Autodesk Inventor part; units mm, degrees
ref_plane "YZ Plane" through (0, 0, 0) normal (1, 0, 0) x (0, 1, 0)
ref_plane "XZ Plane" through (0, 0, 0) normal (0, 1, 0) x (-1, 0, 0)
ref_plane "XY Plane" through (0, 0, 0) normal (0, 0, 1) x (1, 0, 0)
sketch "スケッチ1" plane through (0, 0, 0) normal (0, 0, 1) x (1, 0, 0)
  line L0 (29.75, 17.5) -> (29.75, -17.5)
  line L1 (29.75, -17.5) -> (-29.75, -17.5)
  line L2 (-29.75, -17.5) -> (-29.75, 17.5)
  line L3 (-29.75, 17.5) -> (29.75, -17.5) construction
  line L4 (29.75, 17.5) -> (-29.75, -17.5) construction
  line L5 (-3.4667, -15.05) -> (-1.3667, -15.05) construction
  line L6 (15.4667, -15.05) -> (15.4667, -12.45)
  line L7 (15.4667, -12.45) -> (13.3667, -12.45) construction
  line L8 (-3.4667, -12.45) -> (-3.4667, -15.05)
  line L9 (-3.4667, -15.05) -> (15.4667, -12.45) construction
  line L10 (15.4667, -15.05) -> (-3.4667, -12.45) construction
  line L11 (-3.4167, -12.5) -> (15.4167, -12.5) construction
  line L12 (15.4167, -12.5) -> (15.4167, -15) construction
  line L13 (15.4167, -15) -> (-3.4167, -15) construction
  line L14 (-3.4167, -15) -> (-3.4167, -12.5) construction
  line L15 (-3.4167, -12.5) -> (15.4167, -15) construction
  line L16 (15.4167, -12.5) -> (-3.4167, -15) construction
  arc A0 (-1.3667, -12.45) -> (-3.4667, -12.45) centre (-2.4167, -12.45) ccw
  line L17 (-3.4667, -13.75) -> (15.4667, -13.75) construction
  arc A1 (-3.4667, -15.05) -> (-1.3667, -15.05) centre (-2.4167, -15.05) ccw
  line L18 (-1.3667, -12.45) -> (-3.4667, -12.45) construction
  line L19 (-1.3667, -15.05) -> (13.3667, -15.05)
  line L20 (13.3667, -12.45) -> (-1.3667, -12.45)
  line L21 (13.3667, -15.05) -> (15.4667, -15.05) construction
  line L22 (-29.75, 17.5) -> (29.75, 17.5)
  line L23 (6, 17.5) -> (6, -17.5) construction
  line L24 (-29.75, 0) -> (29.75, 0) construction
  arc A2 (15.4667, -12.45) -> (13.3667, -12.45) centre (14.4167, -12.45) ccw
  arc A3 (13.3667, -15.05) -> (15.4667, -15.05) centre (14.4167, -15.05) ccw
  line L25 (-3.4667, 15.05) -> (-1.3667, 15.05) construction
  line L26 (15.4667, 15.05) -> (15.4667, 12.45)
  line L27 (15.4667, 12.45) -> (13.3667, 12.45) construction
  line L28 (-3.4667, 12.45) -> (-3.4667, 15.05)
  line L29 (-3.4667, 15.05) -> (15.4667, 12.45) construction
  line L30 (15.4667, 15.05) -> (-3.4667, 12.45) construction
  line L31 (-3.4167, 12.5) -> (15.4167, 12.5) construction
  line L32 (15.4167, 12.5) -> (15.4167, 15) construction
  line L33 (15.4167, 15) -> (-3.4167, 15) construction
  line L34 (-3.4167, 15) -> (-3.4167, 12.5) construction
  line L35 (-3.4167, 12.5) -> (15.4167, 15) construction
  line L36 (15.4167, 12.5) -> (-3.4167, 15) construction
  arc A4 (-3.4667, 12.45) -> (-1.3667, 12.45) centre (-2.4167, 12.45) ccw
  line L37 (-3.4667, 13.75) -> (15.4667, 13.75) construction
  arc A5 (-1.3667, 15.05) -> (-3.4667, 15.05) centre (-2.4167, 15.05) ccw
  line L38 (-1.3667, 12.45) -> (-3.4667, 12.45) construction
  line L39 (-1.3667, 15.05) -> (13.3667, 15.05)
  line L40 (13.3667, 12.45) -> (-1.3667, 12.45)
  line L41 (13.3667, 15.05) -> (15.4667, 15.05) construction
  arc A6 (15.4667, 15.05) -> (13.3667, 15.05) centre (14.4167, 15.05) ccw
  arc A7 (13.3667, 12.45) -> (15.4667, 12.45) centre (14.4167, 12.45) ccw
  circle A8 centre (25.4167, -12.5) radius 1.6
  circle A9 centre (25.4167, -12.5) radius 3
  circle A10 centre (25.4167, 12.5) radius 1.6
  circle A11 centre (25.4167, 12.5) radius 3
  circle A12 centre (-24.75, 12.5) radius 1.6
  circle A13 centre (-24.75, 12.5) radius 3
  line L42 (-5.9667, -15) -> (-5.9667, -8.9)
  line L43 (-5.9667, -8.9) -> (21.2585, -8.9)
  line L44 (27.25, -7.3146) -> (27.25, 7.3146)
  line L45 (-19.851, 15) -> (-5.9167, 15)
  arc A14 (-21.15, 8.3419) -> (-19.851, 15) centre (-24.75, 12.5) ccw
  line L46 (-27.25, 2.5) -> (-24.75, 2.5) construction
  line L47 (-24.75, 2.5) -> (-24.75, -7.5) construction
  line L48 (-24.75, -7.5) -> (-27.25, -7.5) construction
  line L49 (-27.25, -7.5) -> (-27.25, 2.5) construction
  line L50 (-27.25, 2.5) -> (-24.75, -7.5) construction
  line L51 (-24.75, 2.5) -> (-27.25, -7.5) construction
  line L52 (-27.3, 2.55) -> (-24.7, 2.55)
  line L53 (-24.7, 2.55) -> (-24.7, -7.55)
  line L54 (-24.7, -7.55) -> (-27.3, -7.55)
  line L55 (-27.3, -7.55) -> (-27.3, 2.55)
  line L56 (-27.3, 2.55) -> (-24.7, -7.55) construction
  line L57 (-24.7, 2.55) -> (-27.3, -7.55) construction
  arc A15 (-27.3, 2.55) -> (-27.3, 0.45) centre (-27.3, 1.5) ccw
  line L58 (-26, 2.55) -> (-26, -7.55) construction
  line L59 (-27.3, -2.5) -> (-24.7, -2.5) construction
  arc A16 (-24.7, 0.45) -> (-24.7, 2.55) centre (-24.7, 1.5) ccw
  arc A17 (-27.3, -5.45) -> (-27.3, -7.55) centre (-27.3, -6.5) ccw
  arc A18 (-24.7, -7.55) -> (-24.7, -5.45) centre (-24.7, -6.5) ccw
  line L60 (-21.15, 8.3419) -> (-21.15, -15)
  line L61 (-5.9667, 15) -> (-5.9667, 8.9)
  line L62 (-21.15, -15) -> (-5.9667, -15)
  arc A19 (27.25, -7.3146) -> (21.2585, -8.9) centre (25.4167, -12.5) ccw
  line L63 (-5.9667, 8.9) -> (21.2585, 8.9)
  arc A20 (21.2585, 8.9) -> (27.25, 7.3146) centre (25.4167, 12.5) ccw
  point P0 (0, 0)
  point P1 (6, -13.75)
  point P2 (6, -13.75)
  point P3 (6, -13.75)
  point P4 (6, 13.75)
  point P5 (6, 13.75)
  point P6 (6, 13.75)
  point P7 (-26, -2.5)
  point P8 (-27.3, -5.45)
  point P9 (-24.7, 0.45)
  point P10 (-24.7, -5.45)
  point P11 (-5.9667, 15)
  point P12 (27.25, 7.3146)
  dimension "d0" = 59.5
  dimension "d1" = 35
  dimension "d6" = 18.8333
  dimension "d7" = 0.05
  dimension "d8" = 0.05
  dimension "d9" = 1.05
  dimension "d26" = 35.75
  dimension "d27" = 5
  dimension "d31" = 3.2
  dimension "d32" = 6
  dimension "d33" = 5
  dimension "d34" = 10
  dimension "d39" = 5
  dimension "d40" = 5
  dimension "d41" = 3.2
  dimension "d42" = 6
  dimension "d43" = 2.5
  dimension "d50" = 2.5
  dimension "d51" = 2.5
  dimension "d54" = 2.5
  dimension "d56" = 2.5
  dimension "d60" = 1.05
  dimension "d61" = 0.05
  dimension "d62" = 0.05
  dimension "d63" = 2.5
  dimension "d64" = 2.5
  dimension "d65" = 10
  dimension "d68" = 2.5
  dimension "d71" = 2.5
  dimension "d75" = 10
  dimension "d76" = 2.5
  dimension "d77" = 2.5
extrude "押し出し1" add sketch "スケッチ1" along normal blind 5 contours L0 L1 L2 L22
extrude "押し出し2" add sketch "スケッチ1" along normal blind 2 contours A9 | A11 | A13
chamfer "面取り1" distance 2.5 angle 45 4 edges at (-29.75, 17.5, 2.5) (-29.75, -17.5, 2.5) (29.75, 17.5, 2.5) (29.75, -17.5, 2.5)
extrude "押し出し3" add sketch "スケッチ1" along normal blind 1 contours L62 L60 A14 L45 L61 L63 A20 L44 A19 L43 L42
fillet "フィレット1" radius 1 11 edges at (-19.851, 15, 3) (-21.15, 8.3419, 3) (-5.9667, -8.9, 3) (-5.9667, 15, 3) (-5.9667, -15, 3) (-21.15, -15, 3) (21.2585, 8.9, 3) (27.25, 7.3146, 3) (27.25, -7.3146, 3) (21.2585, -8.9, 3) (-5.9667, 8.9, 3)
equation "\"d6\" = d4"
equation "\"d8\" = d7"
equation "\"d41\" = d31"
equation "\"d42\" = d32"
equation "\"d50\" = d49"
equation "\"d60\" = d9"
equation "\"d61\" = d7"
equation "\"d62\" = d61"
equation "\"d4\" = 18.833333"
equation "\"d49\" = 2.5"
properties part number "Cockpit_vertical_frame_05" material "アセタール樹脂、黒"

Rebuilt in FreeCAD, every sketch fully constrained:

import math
import FreeCAD as App
import Part
import Sketcher

V = App.Vector
Q = App.Units.Quantity


def edges_at(feature, points):
    """Names of the edges that pass closest to the given points."""
    edges = feature.Shape.Edges
    near = lambda p: min(range(len(edges)), key=lambda i: edges[i].distToShape(Part.Vertex(*p))[0])
    return sorted({f"Edge{near(p) + 1}" for p in points})


def add_polygon(sketch, points):
    """Adds a closed chain of lines whose ends are joined by coincident constraints."""
    first, n = sketch.GeometryCount, len(points)
    for a, b in zip(points, points[1:] + points[:1]):
        sketch.addGeometry(Part.LineSegment(App.Vector(*a, 0), App.Vector(*b, 0)), False)
    for i in range(n):
        sketch.addConstraint(Sketcher.Constraint("Coincident", first + i, 2, first + (i + 1) % n, 1))

doc = App.newDocument("Part")
body = doc.addObject("PartDesign::Body", "Body")

sketch1 = doc.addObject("Sketcher::SketchObject", "Sketch")
body.addObject(sketch1)
sketch1.AttachmentSupport = (doc.XY_Plane, [""])
sketch1.MapMode = "FlatFace"
add_polygon(sketch1, [(29.8, -17.5), (29.8, 17.5), (-29.8, 17.5), (-29.8, -17.5)])
sketch1.addGeometry(Part.ArcOfCircle(Part.Circle(V(-27.3, 1.5, 0), V(0, 0, 1), 1), math.radians(90), math.radians(270)), False)
sketch1.addGeometry(Part.LineSegment(V(-27.3, 2.5, 0), V(-24.7, 2.5, 0)), False)
sketch1.addGeometry(Part.ArcOfCircle(Part.Circle(V(-24.7, 1.5, 0), V(0, 0, 1), 1.1), math.radians(-90), math.radians(90)), False)
sketch1.addGeometry(Part.LineSegment(V(-24.7, 0.5, 0), V(-24.7, -5.5, 0)), False)
sketch1.addGeometry(Part.ArcOfCircle(Part.Circle(V(-24.7, -6.5, 0), V(0, 0, 1), 1), math.radians(-90), math.radians(90)), False)
sketch1.addGeometry(Part.LineSegment(V(-24.7, -7.5, 0), V(-27.3, -7.5, 0)), False)
sketch1.addGeometry(Part.ArcOfCircle(Part.Circle(V(-27.3, -6.5, 0), V(0, 0, 1), 1), math.radians(90), math.radians(270)), False)
sketch1.addGeometry(Part.LineSegment(V(-27.3, -5.5, 0), V(-27.3, 0.5, 0)), False)
sketch1.addGeometry(Part.LineSegment(V(15.5, -12.4, 0), V(15.5, -15.1, 0)), False)
sketch1.addGeometry(Part.ArcOfCircle(Part.Circle(V(14.4, -15.1, 0), V(0, 0, 1), 1.1), math.radians(180), math.radians(360)), False)
sketch1.addGeometry(Part.LineSegment(V(13.4, -15.1, 0), V(-1.4, -15.1, 0)), False)
sketch1.addGeometry(Part.ArcOfCircle(Part.Circle(V(-2.4, -15.1, 0), V(0, 0, 1), 1), math.radians(180), math.radians(360)), False)
sketch1.addGeometry(Part.LineSegment(V(-3.5, -15.1, 0), V(-3.5, -12.4, 0)), False)
sketch1.addGeometry(Part.ArcOfCircle(Part.Circle(V(-2.4, -12.4, 0), V(0, 0, 1), 1.1), math.radians(0), math.radians(180)), False)
sketch1.addGeometry(Part.LineSegment(V(-1.4, -12.4, 0), V(13.4, -12.4, 0)), False)
sketch1.addGeometry(Part.ArcOfCircle(Part.Circle(V(14.4, -12.4, 0), V(0, 0, 1), 1), math.radians(0), math.radians(180)), False)
sketch1.addGeometry(Part.Circle(V(25.4, -12.5, 0), V(0, 0, 1), 3), False)
sketch1.addGeometry(Part.Circle(V(-24.8, 12.5, 0), V(0, 0, 1), 3), False)
sketch1.addGeometry(Part.LineSegment(V(-6, -8.9, 0), V(-6, -15, 0)), False)
sketch1.addGeometry(Part.LineSegment(V(-6, -15, 0), V(-21.1, -15, 0)), False)
sketch1.addGeometry(Part.LineSegment(V(-21.1, -15, 0), V(-21.1, 8.3, 0)), False)
sketch1.addGeometry(Part.ArcOfCircle(Part.Circle(V(-24.8, 12.5, 0), V(0, 0, 1), 5.5), math.radians(-49), math.radians(27)), False)
sketch1.addGeometry(Part.LineSegment(V(-19.9, 15, 0), V(-6, 15, 0)), False)
sketch1.addGeometry(Part.LineSegment(V(-6, 15, 0), V(-6, 8.9, 0)), False)
sketch1.addGeometry(Part.LineSegment(V(-6, 8.9, 0), V(21.3, 8.9, 0)), False)
sketch1.addGeometry(Part.ArcOfCircle(Part.Circle(V(25.4, 12.5, 0), V(0, 0, 1), 5.5), math.radians(-139), math.radians(-71)), False)
sketch1.addGeometry(Part.LineSegment(V(27.2, 7.3, 0), V(27.2, -7.3, 0)), False)
sketch1.addGeometry(Part.ArcOfCircle(Part.Circle(V(25.4, -12.5, 0), V(0, 0, 1), 5.5), math.radians(71), math.radians(139)), False)
sketch1.addGeometry(Part.LineSegment(V(21.3, -8.9, 0), V(-6, -8.9, 0)), False)
sketch1.addGeometry(Part.ArcOfCircle(Part.Circle(V(14.4, 15.1, 0), V(0, 0, 1), 1), math.radians(0), math.radians(180)), False)
sketch1.addGeometry(Part.LineSegment(V(15.5, 15.1, 0), V(15.5, 12.4, 0)), False)
sketch1.addGeometry(Part.ArcOfCircle(Part.Circle(V(14.4, 12.4, 0), V(0, 0, 1), 1.1), math.radians(180), math.radians(360)), False)
sketch1.addGeometry(Part.LineSegment(V(13.4, 12.4, 0), V(-1.4, 12.4, 0)), False)
sketch1.addGeometry(Part.ArcOfCircle(Part.Circle(V(-2.4, 12.4, 0), V(0, 0, 1), 1), math.radians(180), math.radians(360)), False)
sketch1.addGeometry(Part.LineSegment(V(-3.5, 12.4, 0), V(-3.5, 15.1, 0)), False)
sketch1.addGeometry(Part.ArcOfCircle(Part.Circle(V(-2.4, 15.1, 0), V(0, 0, 1), 1.1), math.radians(0), math.radians(180)), False)
sketch1.addGeometry(Part.LineSegment(V(-1.4, 15.1, 0), V(13.4, 15.1, 0)), False)
sketch1.addGeometry(Part.Circle(V(25.4, 12.5, 0), V(0, 0, 1), 3), False)
sketch1.addConstraint(Sketcher.Constraint("Tangent", 4, 1, 5, 1))
sketch1.addConstraint(Sketcher.Constraint("Tangent", 5, 2, 6, 2))
sketch1.addConstraint(Sketcher.Constraint("Coincident", 6, 1, 7, 1))
sketch1.addConstraint(Sketcher.Constraint("Coincident", 7, 2, 8, 2))
sketch1.addConstraint(Sketcher.Constraint("Tangent", 8, 1, 9, 1))
sketch1.addConstraint(Sketcher.Constraint("Tangent", 9, 2, 10, 2))
sketch1.addConstraint(Sketcher.Constraint("Coincident", 10, 1, 11, 1))
sketch1.addConstraint(Sketcher.Constraint("Coincident", 11, 2, 4, 2))
sketch1.addConstraint(Sketcher.Constraint("Tangent", 12, 2, 13, 2))
sketch1.addConstraint(Sketcher.Constraint("Coincident", 13, 1, 14, 1))
sketch1.addConstraint(Sketcher.Constraint("Coincident", 14, 2, 15, 2))
sketch1.addConstraint(Sketcher.Constraint("Tangent", 15, 1, 16, 1))
sketch1.addConstraint(Sketcher.Constraint("Tangent", 16, 2, 17, 2))
sketch1.addConstraint(Sketcher.Constraint("Coincident", 17, 1, 18, 1))
sketch1.addConstraint(Sketcher.Constraint("Coincident", 18, 2, 19, 2))
sketch1.addConstraint(Sketcher.Constraint("Tangent", 19, 1, 12, 1))
sketch1.addConstraint(Sketcher.Constraint("Coincident", 22, 2, 23, 1))
sketch1.addConstraint(Sketcher.Constraint("Coincident", 23, 2, 24, 1))
sketch1.addConstraint(Sketcher.Constraint("Coincident", 24, 2, 25, 1))
sketch1.addConstraint(Sketcher.Constraint("Coincident", 25, 2, 26, 1))
sketch1.addConstraint(Sketcher.Constraint("Coincident", 26, 2, 27, 1))
sketch1.addConstraint(Sketcher.Constraint("Coincident", 27, 2, 28, 1))
sketch1.addConstraint(Sketcher.Constraint("Coincident", 28, 2, 29, 1))
sketch1.addConstraint(Sketcher.Constraint("Coincident", 29, 2, 30, 1))
sketch1.addConstraint(Sketcher.Constraint("Coincident", 30, 2, 31, 1))
sketch1.addConstraint(Sketcher.Constraint("Coincident", 31, 2, 32, 1))
sketch1.addConstraint(Sketcher.Constraint("Coincident", 32, 2, 22, 1))
sketch1.addConstraint(Sketcher.Constraint("Tangent", 33, 1, 34, 1))
sketch1.addConstraint(Sketcher.Constraint("Tangent", 34, 2, 35, 2))
sketch1.addConstraint(Sketcher.Constraint("Coincident", 35, 1, 36, 1))
sketch1.addConstraint(Sketcher.Constraint("Coincident", 36, 2, 37, 2))
sketch1.addConstraint(Sketcher.Constraint("Tangent", 37, 1, 38, 1))
sketch1.addConstraint(Sketcher.Constraint("Tangent", 38, 2, 39, 2))
sketch1.addConstraint(Sketcher.Constraint("Coincident", 39, 1, 40, 1))
sketch1.addConstraint(Sketcher.Constraint("Coincident", 40, 2, 33, 2))
sketch1.addConstraint(Sketcher.Constraint("Vertical", 0))
sketch1.addConstraint(Sketcher.Constraint("Horizontal", 1))
sketch1.addConstraint(Sketcher.Constraint("Vertical", 2))
sketch1.addConstraint(Sketcher.Constraint("Horizontal", 3))
sketch1.addConstraint(Sketcher.Constraint("Horizontal", 5))
sketch1.addConstraint(Sketcher.Constraint("Vertical", 7))
sketch1.addConstraint(Sketcher.Constraint("Horizontal", 9))
sketch1.addConstraint(Sketcher.Constraint("Vertical", 11))
sketch1.addConstraint(Sketcher.Constraint("Vertical", 12))
sketch1.addConstraint(Sketcher.Constraint("Horizontal", 14))
sketch1.addConstraint(Sketcher.Constraint("Vertical", 16))
sketch1.addConstraint(Sketcher.Constraint("Horizontal", 18))
sketch1.addConstraint(Sketcher.Constraint("Vertical", 22))
sketch1.addConstraint(Sketcher.Constraint("Horizontal", 23))
sketch1.addConstraint(Sketcher.Constraint("Vertical", 24))
sketch1.addConstraint(Sketcher.Constraint("Horizontal", 26))
sketch1.addConstraint(Sketcher.Constraint("Vertical", 27))
sketch1.addConstraint(Sketcher.Constraint("Horizontal", 28))
sketch1.addConstraint(Sketcher.Constraint("Vertical", 30))
sketch1.addConstraint(Sketcher.Constraint("Horizontal", 32))
sketch1.addConstraint(Sketcher.Constraint("Vertical", 34))
sketch1.addConstraint(Sketcher.Constraint("Horizontal", 36))
sketch1.addConstraint(Sketcher.Constraint("Vertical", 38))
sketch1.addConstraint(Sketcher.Constraint("Horizontal", 40))
sketch1.addConstraint(Sketcher.Constraint("Coincident", 25, 3, 21, 3))
sketch1.addConstraint(Sketcher.Constraint("Coincident", 31, 3, 20, 3))
sketch1.addConstraint(Sketcher.Constraint("Coincident", 41, 3, 29, 3))
sketch1.addConstraint(Sketcher.Constraint("Equal", 4, 6))
sketch1.addConstraint(Sketcher.Constraint("Equal", 6, 8))
sketch1.addConstraint(Sketcher.Constraint("Equal", 8, 10))
sketch1.addConstraint(Sketcher.Constraint("Equal", 10, 13))
sketch1.addConstraint(Sketcher.Constraint("Equal", 13, 15))
sketch1.addConstraint(Sketcher.Constraint("Equal", 15, 17))
sketch1.addConstraint(Sketcher.Constraint("Equal", 17, 19))
sketch1.addConstraint(Sketcher.Constraint("Equal", 20, 21))
sketch1.addConstraint(Sketcher.Constraint("Equal", 25, 29))
sketch1.addConstraint(Sketcher.Constraint("Equal", 29, 31))
sketch1.addConstraint(Sketcher.Constraint("Equal", 19, 33))
sketch1.addConstraint(Sketcher.Constraint("Equal", 33, 35))
sketch1.addConstraint(Sketcher.Constraint("Equal", 35, 37))
sketch1.addConstraint(Sketcher.Constraint("Equal", 37, 39))
sketch1.addConstraint(Sketcher.Constraint("Equal", 21, 41))
sketch1.addConstraint(Sketcher.Constraint("Symmetric", 0, 2, 2, 2, -1, 1))
sketch1.addConstraint(Sketcher.Constraint("Symmetric", 20, 3, 29, 3, -1))
sketch1.addConstraint(Sketcher.Constraint("Symmetric", 13, 3, 33, 3, -1))
sketch1.addConstraint(Sketcher.Constraint("Symmetric", 17, 3, 37, 3, -1))
sketch1.addConstraint(Sketcher.Constraint("Symmetric", 22, 2, 26, 2, -1))
sketch1.addConstraint(Sketcher.Constraint("Horizontal", 13, 3, 15, 3))
sketch1.addConstraint(Sketcher.Constraint("Horizontal", 17, 3, 19, 3))
sketch1.addConstraint(Sketcher.Constraint("Horizontal", 25, 3, 29, 3))
sketch1.addConstraint(Sketcher.Constraint("Horizontal", 35, 3, 37, 3))
sketch1.addConstraint(Sketcher.Constraint("Horizontal", 33, 3, 39, 3))
sketch1.addConstraint(Sketcher.Constraint("Horizontal", 12, 2, 13, 1))
sketch1.addConstraint(Sketcher.Constraint("Horizontal", 16, 2, 17, 1))
sketch1.addConstraint(Sketcher.Constraint("Horizontal", 34, 2, 35, 1))
sketch1.addConstraint(Sketcher.Constraint("Horizontal", 38, 2, 39, 1))
sketch1.addConstraint(Sketcher.Constraint("Vertical", 6, 3, 8, 3))
sketch1.addConstraint(Sketcher.Constraint("Vertical", 4, 3, 10, 3))
sketch1.addConstraint(Sketcher.Constraint("Vertical", 5, 2, 6, 1))
sketch1.addConstraint(Sketcher.Constraint("Vertical", 9, 2, 10, 1))
sketch1.addConstraint(Sketcher.Constraint("Vertical", 28, 2, 31, 2))
sketch1.addConstraint(Sketcher.Constraint("Equal", 9, 12))
sketch1.addConstraint(Sketcher.Constraint("Diameter", 20, Q("6 mm")))
sketch1.addConstraint(Sketcher.Constraint("DistanceY", 0, 1, 0, 2, Q("35 mm")))
sketch1.addConstraint(Sketcher.Constraint("Radius", 4, Q("1.05 mm")))
sketch1.addConstraint(Sketcher.Constraint("DistanceX", 1, 2, 1, 1, Q("59.5 mm")))
sketch1.addConstraint(Sketcher.Constraint("DistanceY", 20, 3, 8, 3, Q("6 mm")))
sketch1.addConstraint(Sketcher.Constraint("DistanceY", 29, 3, 0, 2, Q("5 mm")))
sketch1.addConstraint(Sketcher.Constraint("DistanceX", 1, 2, 21, 3, Q("5 mm")))
sketch1.addConstraint(Sketcher.Constraint("Radius", 25, Q("5.5 mm")))
sketch1.addConstraint(Sketcher.Constraint("DistanceX", 22, 2, 15, 1, Q("2.5 mm")))
sketch1.addConstraint(Sketcher.Constraint("DistanceY", 2, 2, 23, 2, Q("2.5 mm")))
sketch1.addConstraint(Sketcher.Constraint("DistanceX", 29, 2, 0, 2, Q("2.5 mm")))
sketch1.addConstraint(Sketcher.Constraint("DistanceY", 20, 3, 19, 3, Q("0.05 mm")))
sketch1.addConstraint(Sketcher.Constraint("DistanceX", 21, 3, 6, 3, Q("0.05 mm")))
sketch1.addConstraint(Sketcher.Constraint("DistanceY", 15, 1, 22, 2, Q("0.05 mm")))
sketch1.addConstraint(Sketcher.Constraint("DistanceY", 7, 2, 7, 1, Q("5.9 mm")))
sketch1.addConstraint(Sketcher.Constraint("DistanceY", 22, 2, 22, 1, Q("6.1 mm")))
sketch1.addConstraint(Sketcher.Constraint("DistanceX", 19, 3, 20, 3, Q("11 mm")))
sketch1.addConstraint(Sketcher.Constraint("DistanceX", 2, 2, 23, 2, Q("8.6 mm")))
sketch1.addConstraint(Sketcher.Constraint("DistanceX", 14, 2, 14, 1, Q("14.7334 mm")))
sketch1.addConstraint(Sketcher.Constraint("DistanceX", 23, 2, 23, 1, Q("15.1833 mm")))
pad1 = doc.addObject("PartDesign::Pad", "Pad")
body.addObject(pad1)
pad1.Profile = sketch1
pad1.Length = 5

sketch2 = doc.addObject("Sketcher::SketchObject", "Sketch001")
body.addObject(sketch2)
sketch2.AttachmentSupport = (doc.XY_Plane, [""])
sketch2.MapMode = "FlatFace"
sketch2.addGeometry(Part.Circle(V(25.4, -12.5, 0), V(0, 0, 1), 3), False)
sketch2.addGeometry(Part.Circle(V(25.4, -12.5, 0), V(0, 0, 1), 1.6), False)
sketch2.addGeometry(Part.Circle(V(25.4, 12.5, 0), V(0, 0, 1), 3), False)
sketch2.addGeometry(Part.Circle(V(25.4, 12.5, 0), V(0, 0, 1), 1.6), False)
sketch2.addGeometry(Part.Circle(V(-24.8, 12.5, 0), V(0, 0, 1), 3), False)
sketch2.addGeometry(Part.Circle(V(-24.8, 12.5, 0), V(0, 0, 1), 1.6), False)
sketch2.addConstraint(Sketcher.Constraint("Coincident", 1, 3, 0, 3))
sketch2.addConstraint(Sketcher.Constraint("Coincident", 3, 3, 2, 3))
sketch2.addConstraint(Sketcher.Constraint("Coincident", 5, 3, 4, 3))
sketch2.addConstraint(Sketcher.Constraint("Equal", 0, 2))
sketch2.addConstraint(Sketcher.Constraint("Equal", 1, 3))
sketch2.addConstraint(Sketcher.Constraint("Equal", 2, 4))
sketch2.addConstraint(Sketcher.Constraint("Equal", 3, 5))
sketch2.addConstraint(Sketcher.Constraint("Symmetric", 0, 3, 2, 3, -1))
sketch2.addConstraint(Sketcher.Constraint("Horizontal", 3, 3, 4, 3))
sketch2.addConstraint(Sketcher.Constraint("Diameter", 0, Q("6 mm")))
sketch2.addConstraint(Sketcher.Constraint("Diameter", 1, Q("3.2 mm")))
sketch2.addConstraint(Sketcher.Constraint("DistanceY", 0, 3, 2, 3, Q("25 mm")))
sketch2.addConstraint(Sketcher.Constraint("DistanceX", 4, 3, -1, 1, Q("24.75 mm")))
sketch2.addConstraint(Sketcher.Constraint("DistanceX", -1, 1, 0, 3, Q("25.4167 mm")))
pad2 = doc.addObject("PartDesign::Pad", "Pad001")
body.addObject(pad2)
pad2.Profile = sketch2
pad2.Length = 2
doc.recompute()

chamfer = doc.addObject("PartDesign::Chamfer", "Chamfer")
body.addObject(chamfer)
chamfer.Base = (pad2, edges_at(pad2, [
    (-29.75, 17.5, 2.5),
    (-29.75, -17.5, 2.5),
    (29.75, 17.5, 2.5),
    (29.75, -17.5, 2.5),
]))
chamfer.Size = 2.5

sketch3 = doc.addObject("Sketcher::SketchObject", "Sketch002")
body.addObject(sketch3)
sketch3.AttachmentSupport = (doc.XY_Plane, [""])
sketch3.MapMode = "FlatFace"
sketch3.addGeometry(Part.LineSegment(V(-21, -15, 0), V(-6, -15, 0)), False)
sketch3.addGeometry(Part.LineSegment(V(-6, -15, 0), V(-6, -9, 0)), False)
sketch3.addGeometry(Part.LineSegment(V(-6, -9, 0), V(21, -9, 0)), False)
sketch3.addGeometry(Part.ArcOfCircle(Part.Circle(V(25, -12, 0), V(0, 0, 1), 5), math.radians(71), math.radians(139)), False)
sketch3.addGeometry(Part.LineSegment(V(27, -7, 0), V(27, 7, 0)), False)
sketch3.addGeometry(Part.ArcOfCircle(Part.Circle(V(25, 12, 0), V(0, 0, 1), 6), math.radians(-139), math.radians(-71)), False)
sketch3.addGeometry(Part.LineSegment(V(21, 9, 0), V(-6, 9, 0)), False)
sketch3.addGeometry(Part.LineSegment(V(-6, 9, 0), V(-6, 15, 0)), False)
sketch3.addGeometry(Part.LineSegment(V(-6, 15, 0), V(-20, 15, 0)), False)
sketch3.addGeometry(Part.ArcOfCircle(Part.Circle(V(-25, 12, 0), V(0, 0, 1), 5), math.radians(-49), math.radians(27)), False)
sketch3.addGeometry(Part.LineSegment(V(-21, 8, 0), V(-21, -15, 0)), False)
sketch3.addConstraint(Sketcher.Constraint("Coincident", 0, 2, 1, 1))
sketch3.addConstraint(Sketcher.Constraint("Coincident", 1, 2, 2, 1))
sketch3.addConstraint(Sketcher.Constraint("Coincident", 2, 2, 3, 2))
sketch3.addConstraint(Sketcher.Constraint("Coincident", 3, 1, 4, 1))
sketch3.addConstraint(Sketcher.Constraint("Coincident", 4, 2, 5, 2))
sketch3.addConstraint(Sketcher.Constraint("Coincident", 5, 1, 6, 1))
sketch3.addConstraint(Sketcher.Constraint("Coincident", 6, 2, 7, 1))
sketch3.addConstraint(Sketcher.Constraint("Coincident", 7, 2, 8, 1))
sketch3.addConstraint(Sketcher.Constraint("Coincident", 8, 2, 9, 2))
sketch3.addConstraint(Sketcher.Constraint("Coincident", 9, 1, 10, 1))
sketch3.addConstraint(Sketcher.Constraint("Coincident", 10, 2, 0, 1))
sketch3.addConstraint(Sketcher.Constraint("Horizontal", 0))
sketch3.addConstraint(Sketcher.Constraint("Vertical", 1))
sketch3.addConstraint(Sketcher.Constraint("Horizontal", 2))
sketch3.addConstraint(Sketcher.Constraint("Vertical", 4))
sketch3.addConstraint(Sketcher.Constraint("Horizontal", 6))
sketch3.addConstraint(Sketcher.Constraint("Vertical", 7))
sketch3.addConstraint(Sketcher.Constraint("Horizontal", 8))
sketch3.addConstraint(Sketcher.Constraint("Vertical", 10))
sketch3.addConstraint(Sketcher.Constraint("Equal", 3, 5))
sketch3.addConstraint(Sketcher.Constraint("Equal", 5, 9))
sketch3.addConstraint(Sketcher.Constraint("Symmetric", 3, 3, 5, 3, -1))
sketch3.addConstraint(Sketcher.Constraint("Symmetric", 1, 2, 6, 2, -1))
sketch3.addConstraint(Sketcher.Constraint("Horizontal", 5, 3, 9, 3))
sketch3.addConstraint(Sketcher.Constraint("Equal", 1, 7))
sketch3.addConstraint(Sketcher.Constraint("Radius", 3, Q("5.5 mm")))
sketch3.addConstraint(Sketcher.Constraint("DistanceY", 0, 2, 3, 3, Q("2.5 mm")))
sketch3.addConstraint(Sketcher.Constraint("DistanceY", 1, 1, 1, 2, Q("6.1 mm")))
sketch3.addConstraint(Sketcher.Constraint("DistanceY", 0, 2, -1, 1, Q("15 mm")))
sketch3.addConstraint(Sketcher.Constraint("DistanceX", 9, 3, 9, 1, Q("3.6 mm")))
sketch3.addConstraint(Sketcher.Constraint("DistanceX", 9, 3, -1, 1, Q("24.75 mm")))
sketch3.addConstraint(Sketcher.Constraint("DistanceX", -1, 1, 3, 1, Q("27.25 mm")))
sketch3.addConstraint(Sketcher.Constraint("DistanceX", 0, 1, 0, 2, Q("15.1833 mm")))
sketch3.addConstraint(Sketcher.Constraint("DistanceX", 2, 1, 2, 2, Q("27.2252 mm")))
pad3 = doc.addObject("PartDesign::Pad", "Pad002")
body.addObject(pad3)
pad3.Profile = sketch3
pad3.Length = 1
doc.recompute()

fillet = doc.addObject("PartDesign::Fillet", "Fillet")
body.addObject(fillet)
fillet.Base = (pad3, edges_at(pad3, [
    (-19.851, 15, 3),
    (-21.15, 8.342, 3),
    (-5.967, -8.9, 3),
    (-5.967, 15, 3),
    (-5.967, -15, 3),
    (-21.15, -15, 3),
    (21.259, 8.9, 3),
    (27.25, 7.315, 3),
    (27.25, -7.315, 3),
    (21.259, -8.9, 3),
    (-5.967, 8.9, 3),
]))
fillet.Radius = 1

doc.recompute()
